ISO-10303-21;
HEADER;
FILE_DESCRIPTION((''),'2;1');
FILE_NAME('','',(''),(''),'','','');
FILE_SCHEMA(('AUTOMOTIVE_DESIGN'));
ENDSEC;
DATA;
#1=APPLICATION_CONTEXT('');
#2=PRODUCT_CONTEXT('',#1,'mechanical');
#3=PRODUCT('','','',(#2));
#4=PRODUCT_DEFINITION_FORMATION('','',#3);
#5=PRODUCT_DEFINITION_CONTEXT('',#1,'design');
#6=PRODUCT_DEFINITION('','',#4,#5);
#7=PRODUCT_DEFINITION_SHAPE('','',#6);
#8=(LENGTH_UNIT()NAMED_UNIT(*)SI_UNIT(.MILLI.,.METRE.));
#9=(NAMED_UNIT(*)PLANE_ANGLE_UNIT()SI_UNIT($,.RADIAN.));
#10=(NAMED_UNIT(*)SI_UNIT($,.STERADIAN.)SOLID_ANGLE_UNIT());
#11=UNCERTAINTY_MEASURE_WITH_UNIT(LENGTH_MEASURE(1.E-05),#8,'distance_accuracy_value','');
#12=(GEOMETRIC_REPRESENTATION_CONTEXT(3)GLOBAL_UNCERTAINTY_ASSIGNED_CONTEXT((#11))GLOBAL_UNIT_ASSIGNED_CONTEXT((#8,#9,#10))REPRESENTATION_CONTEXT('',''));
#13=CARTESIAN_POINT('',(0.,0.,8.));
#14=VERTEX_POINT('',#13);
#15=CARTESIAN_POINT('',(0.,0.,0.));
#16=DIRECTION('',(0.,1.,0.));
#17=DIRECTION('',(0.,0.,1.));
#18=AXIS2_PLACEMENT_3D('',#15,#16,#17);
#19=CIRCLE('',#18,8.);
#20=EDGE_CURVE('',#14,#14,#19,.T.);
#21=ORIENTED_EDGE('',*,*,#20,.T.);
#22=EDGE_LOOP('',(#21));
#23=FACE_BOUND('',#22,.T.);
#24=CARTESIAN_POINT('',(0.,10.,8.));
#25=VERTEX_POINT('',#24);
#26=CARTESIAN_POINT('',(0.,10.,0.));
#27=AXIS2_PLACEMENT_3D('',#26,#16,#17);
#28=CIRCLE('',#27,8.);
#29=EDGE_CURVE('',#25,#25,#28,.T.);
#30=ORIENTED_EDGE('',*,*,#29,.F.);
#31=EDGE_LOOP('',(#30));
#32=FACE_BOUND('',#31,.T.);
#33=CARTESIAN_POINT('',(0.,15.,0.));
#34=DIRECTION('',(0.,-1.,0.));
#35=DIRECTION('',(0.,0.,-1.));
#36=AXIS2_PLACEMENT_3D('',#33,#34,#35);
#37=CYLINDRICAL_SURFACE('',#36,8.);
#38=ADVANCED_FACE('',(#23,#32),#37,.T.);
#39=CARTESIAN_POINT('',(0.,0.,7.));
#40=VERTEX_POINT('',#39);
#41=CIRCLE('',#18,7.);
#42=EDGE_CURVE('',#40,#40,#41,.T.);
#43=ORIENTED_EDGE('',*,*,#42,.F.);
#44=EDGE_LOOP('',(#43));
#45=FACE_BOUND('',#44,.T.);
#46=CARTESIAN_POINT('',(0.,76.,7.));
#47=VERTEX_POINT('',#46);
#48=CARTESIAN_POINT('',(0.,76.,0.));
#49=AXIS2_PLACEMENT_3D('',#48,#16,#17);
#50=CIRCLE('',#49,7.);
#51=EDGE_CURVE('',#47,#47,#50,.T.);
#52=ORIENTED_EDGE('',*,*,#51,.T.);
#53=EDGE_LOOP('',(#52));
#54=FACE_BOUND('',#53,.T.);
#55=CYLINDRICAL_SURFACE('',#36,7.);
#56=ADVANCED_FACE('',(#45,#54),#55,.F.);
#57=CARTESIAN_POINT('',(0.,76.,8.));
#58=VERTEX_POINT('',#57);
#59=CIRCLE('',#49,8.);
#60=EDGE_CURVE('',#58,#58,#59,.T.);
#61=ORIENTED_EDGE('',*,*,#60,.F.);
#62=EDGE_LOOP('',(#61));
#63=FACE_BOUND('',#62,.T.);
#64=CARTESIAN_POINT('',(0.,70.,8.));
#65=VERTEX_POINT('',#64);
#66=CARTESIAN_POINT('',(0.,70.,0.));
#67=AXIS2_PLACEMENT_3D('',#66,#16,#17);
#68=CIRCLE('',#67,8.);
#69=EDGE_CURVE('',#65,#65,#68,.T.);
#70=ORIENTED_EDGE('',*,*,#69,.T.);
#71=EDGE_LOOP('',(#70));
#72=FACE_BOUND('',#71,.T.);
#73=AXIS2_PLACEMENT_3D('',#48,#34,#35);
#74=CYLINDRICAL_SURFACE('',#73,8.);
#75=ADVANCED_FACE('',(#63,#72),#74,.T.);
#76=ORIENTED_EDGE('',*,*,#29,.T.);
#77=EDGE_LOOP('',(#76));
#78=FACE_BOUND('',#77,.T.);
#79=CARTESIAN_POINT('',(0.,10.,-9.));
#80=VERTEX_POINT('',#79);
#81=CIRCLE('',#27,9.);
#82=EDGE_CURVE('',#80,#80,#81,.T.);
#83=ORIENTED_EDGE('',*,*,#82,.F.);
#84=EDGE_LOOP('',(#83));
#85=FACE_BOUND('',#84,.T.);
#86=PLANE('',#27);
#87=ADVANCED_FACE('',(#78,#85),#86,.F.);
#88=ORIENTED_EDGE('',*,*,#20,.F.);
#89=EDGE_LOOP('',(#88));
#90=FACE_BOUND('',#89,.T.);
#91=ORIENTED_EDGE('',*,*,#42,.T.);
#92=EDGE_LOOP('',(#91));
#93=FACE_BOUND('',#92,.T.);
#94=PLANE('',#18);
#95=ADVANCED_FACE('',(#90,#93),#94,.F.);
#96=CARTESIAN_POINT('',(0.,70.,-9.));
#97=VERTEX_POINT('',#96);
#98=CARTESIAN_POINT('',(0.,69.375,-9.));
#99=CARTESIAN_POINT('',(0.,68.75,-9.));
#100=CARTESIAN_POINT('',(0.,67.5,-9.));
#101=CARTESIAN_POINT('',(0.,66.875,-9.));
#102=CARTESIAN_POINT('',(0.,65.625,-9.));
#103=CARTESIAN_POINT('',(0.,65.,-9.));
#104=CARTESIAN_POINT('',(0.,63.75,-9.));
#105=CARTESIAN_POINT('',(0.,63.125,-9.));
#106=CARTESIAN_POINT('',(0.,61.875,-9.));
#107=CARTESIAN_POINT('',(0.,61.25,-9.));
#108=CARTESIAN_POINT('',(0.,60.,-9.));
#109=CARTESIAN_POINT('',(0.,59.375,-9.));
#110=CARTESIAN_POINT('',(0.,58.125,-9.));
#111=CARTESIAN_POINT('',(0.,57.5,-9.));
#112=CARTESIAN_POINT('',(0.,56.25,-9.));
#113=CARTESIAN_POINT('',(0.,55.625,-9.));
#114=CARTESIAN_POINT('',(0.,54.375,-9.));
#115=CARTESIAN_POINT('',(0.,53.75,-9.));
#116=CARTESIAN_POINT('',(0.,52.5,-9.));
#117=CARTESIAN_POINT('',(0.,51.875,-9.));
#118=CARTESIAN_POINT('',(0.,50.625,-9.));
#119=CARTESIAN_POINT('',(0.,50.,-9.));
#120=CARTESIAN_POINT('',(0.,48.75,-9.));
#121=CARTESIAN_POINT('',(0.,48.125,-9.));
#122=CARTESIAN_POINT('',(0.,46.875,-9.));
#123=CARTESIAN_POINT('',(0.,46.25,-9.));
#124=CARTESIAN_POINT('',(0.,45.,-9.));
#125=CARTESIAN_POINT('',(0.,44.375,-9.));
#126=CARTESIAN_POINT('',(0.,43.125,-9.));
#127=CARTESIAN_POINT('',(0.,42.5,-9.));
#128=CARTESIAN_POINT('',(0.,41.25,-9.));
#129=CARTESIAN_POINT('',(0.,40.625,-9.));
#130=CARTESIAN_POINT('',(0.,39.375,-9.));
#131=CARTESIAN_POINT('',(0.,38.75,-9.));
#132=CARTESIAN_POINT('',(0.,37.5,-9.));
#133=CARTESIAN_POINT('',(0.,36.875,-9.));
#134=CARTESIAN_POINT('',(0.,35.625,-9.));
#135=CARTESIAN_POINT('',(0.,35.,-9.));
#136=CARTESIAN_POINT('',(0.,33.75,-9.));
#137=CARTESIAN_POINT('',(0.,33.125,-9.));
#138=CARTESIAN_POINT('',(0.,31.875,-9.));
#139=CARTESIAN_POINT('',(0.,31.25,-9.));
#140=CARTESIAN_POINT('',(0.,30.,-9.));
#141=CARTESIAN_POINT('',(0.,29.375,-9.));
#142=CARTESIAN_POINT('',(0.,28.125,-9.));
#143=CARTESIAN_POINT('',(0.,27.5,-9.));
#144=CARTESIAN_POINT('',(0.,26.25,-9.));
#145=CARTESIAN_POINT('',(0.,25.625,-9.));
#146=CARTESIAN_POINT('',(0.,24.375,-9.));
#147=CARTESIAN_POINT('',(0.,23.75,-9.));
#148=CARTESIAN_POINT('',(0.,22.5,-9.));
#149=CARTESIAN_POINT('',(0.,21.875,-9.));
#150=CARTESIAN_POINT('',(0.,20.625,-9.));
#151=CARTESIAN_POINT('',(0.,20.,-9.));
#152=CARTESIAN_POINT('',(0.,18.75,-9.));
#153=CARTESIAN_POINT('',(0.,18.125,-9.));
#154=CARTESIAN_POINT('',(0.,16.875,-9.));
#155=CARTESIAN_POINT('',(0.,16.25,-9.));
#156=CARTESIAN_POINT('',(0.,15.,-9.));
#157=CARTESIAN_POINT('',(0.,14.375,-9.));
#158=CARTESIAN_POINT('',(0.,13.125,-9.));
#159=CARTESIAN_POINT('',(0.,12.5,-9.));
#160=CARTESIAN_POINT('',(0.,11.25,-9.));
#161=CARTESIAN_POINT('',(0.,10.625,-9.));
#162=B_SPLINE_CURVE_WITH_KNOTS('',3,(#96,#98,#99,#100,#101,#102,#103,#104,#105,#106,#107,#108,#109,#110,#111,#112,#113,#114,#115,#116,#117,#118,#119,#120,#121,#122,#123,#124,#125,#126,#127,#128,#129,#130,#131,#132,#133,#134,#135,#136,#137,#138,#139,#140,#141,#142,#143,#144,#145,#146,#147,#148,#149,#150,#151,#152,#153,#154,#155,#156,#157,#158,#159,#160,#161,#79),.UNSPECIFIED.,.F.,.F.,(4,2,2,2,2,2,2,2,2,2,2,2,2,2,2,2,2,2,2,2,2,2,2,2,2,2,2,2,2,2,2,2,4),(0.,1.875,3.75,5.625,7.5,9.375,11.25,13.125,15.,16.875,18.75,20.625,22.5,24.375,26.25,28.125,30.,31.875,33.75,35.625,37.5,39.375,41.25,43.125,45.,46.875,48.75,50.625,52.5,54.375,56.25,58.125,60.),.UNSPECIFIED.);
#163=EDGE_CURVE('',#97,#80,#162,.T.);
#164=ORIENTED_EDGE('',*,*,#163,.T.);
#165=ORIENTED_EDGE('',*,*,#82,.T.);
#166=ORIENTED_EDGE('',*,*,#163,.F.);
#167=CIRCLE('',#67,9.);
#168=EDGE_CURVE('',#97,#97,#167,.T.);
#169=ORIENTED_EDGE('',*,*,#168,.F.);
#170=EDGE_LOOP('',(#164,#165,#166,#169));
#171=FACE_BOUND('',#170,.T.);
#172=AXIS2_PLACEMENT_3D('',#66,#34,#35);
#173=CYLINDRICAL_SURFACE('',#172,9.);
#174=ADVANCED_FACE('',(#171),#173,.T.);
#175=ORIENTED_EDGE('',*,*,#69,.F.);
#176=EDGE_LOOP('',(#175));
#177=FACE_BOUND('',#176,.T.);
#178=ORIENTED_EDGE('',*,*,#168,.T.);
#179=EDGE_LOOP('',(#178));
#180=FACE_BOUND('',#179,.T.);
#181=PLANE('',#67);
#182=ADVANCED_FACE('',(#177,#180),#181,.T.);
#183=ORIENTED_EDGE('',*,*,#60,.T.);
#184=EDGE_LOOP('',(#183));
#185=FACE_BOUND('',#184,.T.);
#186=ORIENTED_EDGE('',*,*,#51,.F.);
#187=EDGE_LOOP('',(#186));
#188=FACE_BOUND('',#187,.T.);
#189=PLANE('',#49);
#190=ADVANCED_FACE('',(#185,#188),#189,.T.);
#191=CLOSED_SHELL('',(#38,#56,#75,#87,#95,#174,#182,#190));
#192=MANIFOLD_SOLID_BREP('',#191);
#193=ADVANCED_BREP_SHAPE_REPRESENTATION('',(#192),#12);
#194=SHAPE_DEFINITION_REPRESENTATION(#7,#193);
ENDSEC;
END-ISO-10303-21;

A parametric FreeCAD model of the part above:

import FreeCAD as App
import Part
import Sketcher

V = App.Vector

doc = App.newDocument("Part")
body = doc.addObject("PartDesign::Body", "Body")

# Sketch on XZ plane
sketch1 = body.newObject("Sketcher::SketchObject", "Sketch")
sketch1.AttachmentSupport = (doc.getObject("XZ_Plane"), [""])
sketch1.MapMode = "FlatFace"
sketch1.addGeometry([
    Part.Circle(V(0, 0, 0), V(0, 0, 1), 8),
    Part.Circle(V(0, 0, 0), V(0, 0, 1), 7),
], False)
sketch1.addConstraint([
    Sketcher.Constraint("Coincident", 0, 3, -1, 1),
    Sketcher.Constraint("Coincident", 1, 3, -1, 1),
    Sketcher.Constraint("Diameter", 0, 16.0),
    Sketcher.Constraint("Diameter", 1, 14.0),
])
pad1 = body.newObject("PartDesign::Pad", "Pad")
pad1.Profile = sketch1
pad1.Length = 15
pad1.Reversed = True

# Sketch on XZ plane
sketch2 = body.newObject("Sketcher::SketchObject", "Sketch001")
sketch2.AttachmentSupport = (doc.getObject("XZ_Plane"), [""])
sketch2.MapMode = "FlatFace"
sketch2.AttachmentOffset = App.Placement(V(0, 0, -45), App.Rotation())
sketch2.addGeometry([
    Part.Circle(V(0, 0, 0), V(0, 0, 1), 8),
    Part.Circle(V(0, 0, 0), V(0, 0, 1), 7),
], False)
sketch2.addConstraint([
    Sketcher.Constraint("Coincident", 0, 3, -1, 1),
    Sketcher.Constraint("Coincident", 1, 3, -1, 1),
    Sketcher.Constraint("Diameter", 0, 16.0),
    Sketcher.Constraint("Diameter", 1, 14.0),
])
pad2 = body.newObject("PartDesign::Pad", "Pad001")
pad2.Profile = sketch2
pad2.Type = "TwoLengths"
pad2.Length = 11
pad2.Length2 = 40
pad2.Reversed = True

# Sketch on XZ plane
sketch3 = body.newObject("Sketcher::SketchObject", "Sketch002")
sketch3.AttachmentSupport = (doc.getObject("XZ_Plane"), [""])
sketch3.MapMode = "FlatFace"
sketch3.AttachmentOffset = App.Placement(V(0, 0, -10), App.Rotation())
sketch3.addGeometry([
    Part.Circle(V(0, 0, 0), V(0, 0, 1), 9),
    Part.Circle(V(0, 0, 0), V(0, 0, 1), 8),
], False)
sketch3.addConstraint([
    Sketcher.Constraint("Coincident", 0, 3, -1, 1),
    Sketcher.Constraint("Coincident", 1, 3, -1, 1),
    Sketcher.Constraint("Diameter", 0, 18.0),
    Sketcher.Constraint("Diameter", 1, 16.0),
])
pad3 = body.newObject("PartDesign::Pad", "Pad002")
pad3.Profile = sketch3
pad3.Length = 60
pad3.Reversed = True

# Sketch on XZ plane
sketch4 = body.newObject("Sketcher::SketchObject", "Sketch003")
sketch4.AttachmentSupport = (doc.getObject("XZ_Plane"), [""])
sketch4.MapMode = "FlatFace"
sketch4.AttachmentOffset = App.Placement(V(0, 0, -45), App.Rotation())
sketch4.addGeometry([
    Part.Circle(V(0, 0, 0), V(0, 0, 1), 8),
    Part.Circle(V(0, 0, 0), V(0, 0, 1), 7),
], False)
sketch4.addConstraint([
    Sketcher.Constraint("Coincident", 0, 3, -1, 1),
    Sketcher.Constraint("Coincident", 1, 3, -1, 1),
    Sketcher.Constraint("Diameter", 0, 16.0),
    Sketcher.Constraint("Diameter", 1, 14.0),
])
pad4 = body.newObject("PartDesign::Pad", "Pad003")
pad4.Profile = sketch4
pad4.Length = 31
pad4.Reversed = True

doc.recompute()
